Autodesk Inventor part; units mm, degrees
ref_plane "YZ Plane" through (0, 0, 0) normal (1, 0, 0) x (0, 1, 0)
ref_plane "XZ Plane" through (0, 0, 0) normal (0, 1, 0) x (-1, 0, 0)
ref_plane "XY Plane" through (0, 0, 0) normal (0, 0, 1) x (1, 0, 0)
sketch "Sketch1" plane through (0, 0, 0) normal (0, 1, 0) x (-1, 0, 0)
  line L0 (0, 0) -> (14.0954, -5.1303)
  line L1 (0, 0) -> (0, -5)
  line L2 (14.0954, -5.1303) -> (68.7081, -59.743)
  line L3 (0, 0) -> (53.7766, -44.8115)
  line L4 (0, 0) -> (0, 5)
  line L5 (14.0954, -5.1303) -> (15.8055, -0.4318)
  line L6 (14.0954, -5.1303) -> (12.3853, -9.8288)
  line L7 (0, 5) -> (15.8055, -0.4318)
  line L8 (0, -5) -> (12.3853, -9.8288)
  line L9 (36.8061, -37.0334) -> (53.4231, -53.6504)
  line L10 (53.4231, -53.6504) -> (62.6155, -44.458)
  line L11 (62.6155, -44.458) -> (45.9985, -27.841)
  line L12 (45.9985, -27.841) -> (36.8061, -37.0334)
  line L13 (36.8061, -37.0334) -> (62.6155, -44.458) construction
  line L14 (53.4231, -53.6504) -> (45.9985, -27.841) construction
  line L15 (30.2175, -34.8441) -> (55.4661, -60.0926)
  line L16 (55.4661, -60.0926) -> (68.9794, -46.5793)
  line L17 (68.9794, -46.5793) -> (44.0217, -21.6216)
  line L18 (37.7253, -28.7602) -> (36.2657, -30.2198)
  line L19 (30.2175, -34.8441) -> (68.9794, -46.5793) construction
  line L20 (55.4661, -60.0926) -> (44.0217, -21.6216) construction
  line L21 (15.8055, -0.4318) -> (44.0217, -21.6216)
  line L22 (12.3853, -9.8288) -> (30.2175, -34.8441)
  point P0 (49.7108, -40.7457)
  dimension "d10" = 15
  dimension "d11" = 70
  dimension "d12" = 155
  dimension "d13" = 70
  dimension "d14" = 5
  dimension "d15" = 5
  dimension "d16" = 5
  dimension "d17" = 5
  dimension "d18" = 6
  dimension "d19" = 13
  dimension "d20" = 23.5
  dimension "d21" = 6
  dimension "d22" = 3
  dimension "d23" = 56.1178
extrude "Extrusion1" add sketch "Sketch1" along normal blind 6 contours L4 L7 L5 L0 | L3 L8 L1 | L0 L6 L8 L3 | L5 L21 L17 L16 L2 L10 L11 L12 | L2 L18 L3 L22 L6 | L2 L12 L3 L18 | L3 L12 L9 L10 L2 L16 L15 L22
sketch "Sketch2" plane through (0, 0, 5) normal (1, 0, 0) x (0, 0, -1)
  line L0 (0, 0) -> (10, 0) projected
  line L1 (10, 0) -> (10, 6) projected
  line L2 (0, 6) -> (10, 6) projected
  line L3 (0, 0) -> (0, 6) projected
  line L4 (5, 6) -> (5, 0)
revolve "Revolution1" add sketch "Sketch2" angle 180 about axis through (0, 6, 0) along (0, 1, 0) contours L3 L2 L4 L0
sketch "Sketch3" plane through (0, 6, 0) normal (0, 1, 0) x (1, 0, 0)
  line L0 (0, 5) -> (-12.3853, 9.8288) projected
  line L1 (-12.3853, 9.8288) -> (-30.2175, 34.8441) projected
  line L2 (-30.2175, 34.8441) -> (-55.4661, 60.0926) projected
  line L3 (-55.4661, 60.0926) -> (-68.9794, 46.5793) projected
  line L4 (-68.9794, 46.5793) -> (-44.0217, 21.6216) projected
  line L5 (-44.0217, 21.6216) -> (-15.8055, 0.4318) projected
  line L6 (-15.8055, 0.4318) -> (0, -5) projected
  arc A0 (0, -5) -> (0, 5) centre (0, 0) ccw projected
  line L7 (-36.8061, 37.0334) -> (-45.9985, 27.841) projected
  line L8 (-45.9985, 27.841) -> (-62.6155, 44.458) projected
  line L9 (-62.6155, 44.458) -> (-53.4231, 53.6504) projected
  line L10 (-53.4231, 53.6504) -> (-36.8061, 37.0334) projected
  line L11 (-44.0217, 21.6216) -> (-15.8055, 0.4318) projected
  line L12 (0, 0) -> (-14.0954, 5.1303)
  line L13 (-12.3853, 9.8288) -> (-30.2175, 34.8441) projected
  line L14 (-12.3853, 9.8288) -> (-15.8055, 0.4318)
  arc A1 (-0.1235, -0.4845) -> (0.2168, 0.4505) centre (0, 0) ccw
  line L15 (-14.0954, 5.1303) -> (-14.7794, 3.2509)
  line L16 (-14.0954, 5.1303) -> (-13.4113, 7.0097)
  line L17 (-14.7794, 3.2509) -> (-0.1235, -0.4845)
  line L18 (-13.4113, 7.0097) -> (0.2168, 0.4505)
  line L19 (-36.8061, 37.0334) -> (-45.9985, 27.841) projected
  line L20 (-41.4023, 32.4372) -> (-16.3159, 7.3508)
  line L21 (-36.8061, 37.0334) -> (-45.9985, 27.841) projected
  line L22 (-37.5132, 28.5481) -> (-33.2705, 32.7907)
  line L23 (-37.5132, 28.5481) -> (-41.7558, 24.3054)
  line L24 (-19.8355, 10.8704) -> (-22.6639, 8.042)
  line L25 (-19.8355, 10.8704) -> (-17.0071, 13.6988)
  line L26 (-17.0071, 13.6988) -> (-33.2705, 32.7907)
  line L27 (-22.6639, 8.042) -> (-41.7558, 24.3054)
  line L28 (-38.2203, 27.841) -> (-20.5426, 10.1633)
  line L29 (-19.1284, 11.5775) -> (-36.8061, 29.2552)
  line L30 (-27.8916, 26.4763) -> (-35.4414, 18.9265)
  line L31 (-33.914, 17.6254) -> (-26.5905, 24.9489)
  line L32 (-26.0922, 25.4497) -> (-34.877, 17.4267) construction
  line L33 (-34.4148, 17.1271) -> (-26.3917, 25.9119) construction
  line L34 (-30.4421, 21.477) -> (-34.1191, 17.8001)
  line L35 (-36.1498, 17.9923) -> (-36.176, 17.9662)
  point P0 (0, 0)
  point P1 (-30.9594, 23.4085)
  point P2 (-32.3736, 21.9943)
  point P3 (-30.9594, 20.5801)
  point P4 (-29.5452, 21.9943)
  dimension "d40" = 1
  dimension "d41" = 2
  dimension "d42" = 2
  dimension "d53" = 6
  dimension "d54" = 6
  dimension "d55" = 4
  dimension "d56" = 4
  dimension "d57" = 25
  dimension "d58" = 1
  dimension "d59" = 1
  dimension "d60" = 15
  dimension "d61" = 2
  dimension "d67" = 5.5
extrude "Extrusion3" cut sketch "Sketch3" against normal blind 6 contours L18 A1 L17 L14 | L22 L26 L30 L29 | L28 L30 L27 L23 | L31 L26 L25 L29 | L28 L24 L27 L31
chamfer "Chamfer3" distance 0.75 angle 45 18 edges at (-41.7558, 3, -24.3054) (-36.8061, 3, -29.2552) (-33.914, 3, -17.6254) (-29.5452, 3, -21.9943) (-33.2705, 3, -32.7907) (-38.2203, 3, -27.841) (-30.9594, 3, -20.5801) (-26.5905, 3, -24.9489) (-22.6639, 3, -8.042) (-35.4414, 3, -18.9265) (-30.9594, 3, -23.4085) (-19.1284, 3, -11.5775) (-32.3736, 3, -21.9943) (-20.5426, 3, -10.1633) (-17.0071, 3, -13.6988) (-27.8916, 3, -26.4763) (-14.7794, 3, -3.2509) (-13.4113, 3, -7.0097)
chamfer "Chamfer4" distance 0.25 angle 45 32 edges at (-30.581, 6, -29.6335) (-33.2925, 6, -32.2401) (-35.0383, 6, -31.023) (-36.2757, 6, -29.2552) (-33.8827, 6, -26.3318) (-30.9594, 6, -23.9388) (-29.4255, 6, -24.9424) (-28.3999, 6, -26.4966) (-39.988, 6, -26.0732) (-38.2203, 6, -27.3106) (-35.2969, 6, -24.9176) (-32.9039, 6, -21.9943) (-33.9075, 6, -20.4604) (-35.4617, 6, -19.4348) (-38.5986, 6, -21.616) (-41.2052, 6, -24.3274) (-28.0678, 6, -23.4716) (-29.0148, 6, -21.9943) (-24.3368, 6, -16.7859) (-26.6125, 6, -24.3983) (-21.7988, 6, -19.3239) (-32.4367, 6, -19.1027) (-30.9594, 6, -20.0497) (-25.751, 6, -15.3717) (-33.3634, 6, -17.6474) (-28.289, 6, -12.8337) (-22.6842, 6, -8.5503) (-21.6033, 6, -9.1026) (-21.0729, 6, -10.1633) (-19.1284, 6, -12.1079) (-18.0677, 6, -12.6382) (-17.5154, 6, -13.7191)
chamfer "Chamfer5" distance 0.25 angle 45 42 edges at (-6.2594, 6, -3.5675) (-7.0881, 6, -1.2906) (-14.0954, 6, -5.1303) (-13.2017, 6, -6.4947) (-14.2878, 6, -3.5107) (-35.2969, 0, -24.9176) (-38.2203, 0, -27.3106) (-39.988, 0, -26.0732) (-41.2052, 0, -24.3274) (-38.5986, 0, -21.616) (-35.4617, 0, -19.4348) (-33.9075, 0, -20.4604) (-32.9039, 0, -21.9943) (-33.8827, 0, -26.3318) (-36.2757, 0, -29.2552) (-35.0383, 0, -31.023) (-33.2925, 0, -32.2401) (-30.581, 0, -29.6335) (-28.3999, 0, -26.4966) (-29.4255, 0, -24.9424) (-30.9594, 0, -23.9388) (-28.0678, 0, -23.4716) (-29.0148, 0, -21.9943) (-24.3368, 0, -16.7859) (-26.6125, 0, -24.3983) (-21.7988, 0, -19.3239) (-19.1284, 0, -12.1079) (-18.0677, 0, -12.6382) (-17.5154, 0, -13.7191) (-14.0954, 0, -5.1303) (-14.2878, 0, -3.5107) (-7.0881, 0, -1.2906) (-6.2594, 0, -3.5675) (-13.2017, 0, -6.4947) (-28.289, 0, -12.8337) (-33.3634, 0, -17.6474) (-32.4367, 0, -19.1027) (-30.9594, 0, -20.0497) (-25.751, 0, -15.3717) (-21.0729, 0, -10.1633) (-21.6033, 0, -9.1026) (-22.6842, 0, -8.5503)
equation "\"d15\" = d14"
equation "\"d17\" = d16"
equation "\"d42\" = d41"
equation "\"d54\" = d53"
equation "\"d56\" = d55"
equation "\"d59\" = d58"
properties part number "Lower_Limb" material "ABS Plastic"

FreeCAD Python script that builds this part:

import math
import FreeCAD as App
import Part
import Sketcher
Q = App.Units.Quantity


def edges_at(feature, points):
    """Names of the edges that pass closest to the given points."""
    edges = feature.Shape.Edges
    near = lambda p: min(range(len(edges)), key=lambda i: edges[i].distToShape(Part.Vertex(*p))[0])
    return sorted({f"Edge{near(p) + 1}" for p in points})


def add_polygon(sketch, points):
    """Adds a closed chain of lines whose ends are joined by coincident constraints."""
    first, n = sketch.GeometryCount, len(points)
    for a, b in zip(points, points[1:] + points[:1]):
        sketch.addGeometry(Part.LineSegment(App.Vector(*a, 0), App.Vector(*b, 0)), False)
    for i in range(n):
        sketch.addConstraint(Sketcher.Constraint("Coincident", first + i, 2, first + (i + 1) % n, 1))

doc = App.newDocument("Part")
body = doc.addObject("PartDesign::Body", "Body")

sketch1 = body.newObject("Sketcher::SketchObject", "Sketch")
sketch1.AttachmentSupport = (doc.getObject("XZ_Plane"), [""])
sketch1.MapMode = "FlatFace"
add_polygon(sketch1, [(0, 5), (0, -5), (-12.3853, -9.8288), (-30.2175, -34.8441), (-55.4661, -60.0926), (-68.9794, -46.5793), (-44.0217, -21.6216), (-15.8055, -0.4318)])
add_polygon(sketch1, [(-62.6155, -44.458), (-53.4231, -53.6504), (-36.8061, -37.0334), (-45.9985, -27.841)])
sketch1.addConstraint([
    Sketcher.Constraint("Vertical", 0),
    Sketcher.Constraint("Symmetric", 0, 2, 7, 2, -1, 1),
    Sketcher.Constraint("Perpendicular", 3, 4),
    Sketcher.Constraint("Perpendicular", 4, 5),
    Sketcher.Constraint("Perpendicular", 5, 8),
    Sketcher.Constraint("Perpendicular", 8, 9),
    Sketcher.Constraint("Perpendicular", 9, 10),
    Sketcher.Constraint("Perpendicular", 10, 11),
    Sketcher.Constraint("Distance", 8, 13.0),
    Sketcher.Constraint("DistanceY", 0, 2, -1, 1, 5.0),
    Sketcher.Constraint("Distance", 9, 23.5),
    Sketcher.Constraint("Angle", 3, Q("-135 deg")),
    Sketcher.Constraint("Angle", 1, Q("-158.7 deg")),
    Sketcher.Constraint("DistanceX", 3, 2, 9, 2, 18.66),
    Sketcher.Constraint("DistanceY", 2, 2, -1, 1, 34.844),
    Sketcher.Constraint("DistanceX", 3, 2, -1, 1, 55.466),
    Sketcher.Constraint("DistanceY", 10, 2, -1, 1, 27.841),
    Sketcher.Constraint("DistanceX", 4, 2, 2, 2, 38.762),
    Sketcher.Constraint("DistanceX", 4, 2, 1, 2, 56.594),
    Sketcher.Constraint("DistanceY", 3, 2, 5, 2, 38.471),
    Sketcher.Constraint("DistanceY", 1, 2, 6, 2, 9.397),
    Sketcher.Constraint("DistanceX", 2, 2, 6, 2, 14.412),
    Sketcher.Constraint("DistanceY", 8, 2, 4, 2, 7.071),
])
pad1 = body.newObject("PartDesign::Pad", "Pad")
pad1.Profile = sketch1
pad1.Length = 6
pad1.Reversed = True

sketch2 = body.newObject("Sketcher::SketchObject", "Sketch001")
sketch2.AttachmentSupport = (doc.getObject("YZ_Plane"), [""])
sketch2.MapMode = "FlatFace"
add_polygon(sketch2, [(6, 5), (0, 5), (0, 0), (6, 0)])
sketch2.addConstraint([
    Sketcher.Constraint("Horizontal", 0),
    Sketcher.Constraint("Vertical", 1),
    Sketcher.Constraint("Horizontal", 2),
    Sketcher.Constraint("Vertical", 3),
    Sketcher.Constraint("Coincident", 1, 2, -1, 1),
    Sketcher.Constraint("DistanceX", 0, 2, 0, 1, 6.0),
    Sketcher.Constraint("DistanceY", 1, 2, 1, 1, 5.0),
])
revolution = body.newObject("PartDesign::Revolution", "Revolution")
revolution.Profile = sketch2
revolution.ReferenceAxis = (sketch2, ["H_Axis"])
revolution.Angle = 180

sketch3 = body.newObject("Sketcher::SketchObject", "Sketch002")
sketch3.AttachmentSupport = (doc.getObject("XZ_Plane"), [""])
sketch3.MapMode = "FlatFace"
sketch3.AttachmentOffset = App.Placement(App.Vector(0, 0, -6), App.Rotation())
sketch3.addGeometry(Part.LineSegment(App.Vector(0.2168, -0.4505, 0), App.Vector(-13.4113, -7.0097, 0)), False)
sketch3.addGeometry(Part.LineSegment(App.Vector(-13.4113, -7.0097, 0), App.Vector(-14.7794, -3.2509, 0)), False)
sketch3.addGeometry(Part.LineSegment(App.Vector(-14.7794, -3.2509, 0), App.Vector(-0.1235, 0.4845, 0)), False)
sketch3.addGeometry(Part.ArcOfCircle(Part.Circle(App.Vector(0, 0, 0), App.Vector(0, 0, 1), 0.499992), math.radians(-64.301137), math.radians(104.300277)), False)
add_polygon(sketch3, [(-33.2705, -32.7907), (-36.8061, -29.2552), (-30.9594, -23.4085), (-27.891594, -26.476305)])
add_polygon(sketch3, [(-32.3736, -21.9943), (-38.220292, -27.840992), (-41.7558, -24.3054), (-35.4414, -18.9265)])
add_polygon(sketch3, [(-26.5905, -24.9489), (-29.54515, -21.99425), (-19.1284, -11.5775), (-17.0071, -13.6988)])
add_polygon(sketch3, [(-20.5426, -10.1633), (-30.95935, -20.58005), (-33.914011, -17.625387), (-22.6639, -8.042)])
sketch3.addConstraint([
    Sketcher.Constraint("Coincident", 0, 2, 1, 1),
    Sketcher.Constraint("Coincident", 1, 2, 2, 1),
    Sketcher.Constraint("Tangent", 2, 2, 3, 2),
    Sketcher.Constraint("Tangent", 3, 1, 0, 1),
    Sketcher.Constraint("Coincident", 3, 3, -1, 1),
    Sketcher.Constraint("Perpendicular", 4, 5),
    Sketcher.Constraint("Perpendicular", 5, 6),
    Sketcher.Constraint("Perpendicular", 6, 8),
    Sketcher.Constraint("Perpendicular", 8, 9),
    Sketcher.Constraint("Parallel", 9, 11),
    Sketcher.Constraint("Parallel", 11, 12),
    Sketcher.Constraint("Perpendicular", 12, 13),
    Sketcher.Constraint("Perpendicular", 13, 14),
    Sketcher.Constraint("Parallel", 7, 15),
    Sketcher.Constraint("Perpendicular", 14, 16),
    Sketcher.Constraint("Perpendicular", 16, 17),
    Sketcher.Constraint("Parallel", 10, 18),
    Sketcher.Constraint("Parallel", 17, 19),
    Sketcher.Constraint("Horizontal", 11, 2, 12, 2),
    Sketcher.Constraint("Vertical", 5, 2, 16, 2),
    Sketcher.Constraint("Equal", 0, 2),
    Sketcher.Constraint("Equal", 5, 8),
    Sketcher.Constraint("Equal", 4, 9),
    Sketcher.Constraint("Equal", 7, 10),
    Sketcher.Constraint("Equal", 13, 16),
    Sketcher.Constraint("Equal", 12, 17),
    Sketcher.Constraint("Radius", 3, 0.5),
    Sketcher.Constraint("Distance", 1, 4.0),
    Sketcher.Constraint("Angle", 1, Q("110 deg")),
    Sketcher.Constraint("Angle", 4, Q("135.0007 deg")),
    Sketcher.Constraint("Distance", 4, 5.0),
    Sketcher.Constraint("Distance", 14, 3.0),
    Sketcher.Constraint("DistanceY", 16, 2, -1, 1, 20.58),
    Sketcher.Constraint("DistanceX", 5, 2, 1, 2, 16.18),
    Sketcher.Constraint("DistanceX", 7, 2, 15, 2, 6.68),
    Sketcher.Constraint("DistanceX", 17, 2, 18, 2, 11.25),
    Sketcher.Constraint("DistanceY", 1, 2, -1, 1, 3.251),
    Sketcher.Constraint("DistanceX", 4, 2, -1, 1, 36.806),
    Sketcher.Constraint("DistanceY", 8, 2, -1, 1, 27.841),
    Sketcher.Constraint("DistanceX", 14, 2, -1, 1, 17.007),
    Sketcher.Constraint("DistanceY", 5, 2, 3, 1, 22.958),
    Sketcher.Constraint("DistanceX", 8, 2, 5, 2, 7.261),
])
pocket1 = body.newObject("PartDesign::Pocket", "Pocket")
pocket1.Profile = sketch3
pocket1.Length = 6
pocket1.Reversed = True
doc.recompute()

chamfer = body.newObject("PartDesign::Chamfer", "Chamfer")
chamfer.Base = (pocket1, edges_at(pocket1, [
    (-41.756, 3, -24.305),
    (-36.806, 3, -29.255),
    (-33.914, 3, -17.625),
    (-29.545, 3, -21.994),
    (-33.27, 3, -32.791),
    (-38.22, 3, -27.841),
    (-30.959, 3, -20.58),
    (-26.59, 3, -24.949),
    (-22.664, 3, -8.042),
    (-35.441, 3, -18.927),
    (-30.959, 3, -23.409),
    (-19.128, 3, -11.578),
    (-32.374, 3, -21.994),
    (-20.543, 3, -10.163),
    (-17.007, 3, -13.699),
    (-27.892, 3, -26.476),
    (-14.779, 3, -3.251),
    (-13.411, 3, -7.01),
]))
chamfer.Size = 0.75
doc.recompute()

chamfer2 = body.newObject("PartDesign::Chamfer", "Chamfer001")
chamfer2.Base = (chamfer, edges_at(chamfer, [
    (-30.581, 6, -29.634),
    (-33.292, 6, -32.24),
    (-35.038, 6, -31.023),
    (-36.276, 6, -29.255),
    (-33.883, 6, -26.332),
    (-30.959, 6, -23.939),
    (-29.425, 6, -24.942),
    (-28.4, 6, -26.497),
    (-39.988, 6, -26.073),
    (-38.22, 6, -27.311),
    (-35.297, 6, -24.918),
    (-32.904, 6, -21.994),
    (-33.907, 6, -20.46),
    (-35.462, 6, -19.435),
    (-38.599, 6, -21.616),
    (-41.205, 6, -24.327),
    (-28.068, 6, -23.472),
    (-29.015, 6, -21.994),
    (-24.337, 6, -16.786),
    (-26.613, 6, -24.398),
    (-21.799, 6, -19.324),
    (-32.437, 6, -19.103),
    (-30.959, 6, -20.05),
    (-25.751, 6, -15.372),
    (-33.363, 6, -17.647),
    (-28.289, 6, -12.834),
    (-22.684, 6, -8.55),
    (-21.603, 6, -9.103),
    (-21.073, 6, -10.163),
    (-19.128, 6, -12.108),
    (-18.068, 6, -12.638),
    (-17.515, 6, -13.719),
]))
chamfer2.Size = 0.25
doc.recompute()

chamfer3 = body.newObject("PartDesign::Chamfer", "Chamfer002")
chamfer3.Base = (chamfer2, edges_at(chamfer2, [
    (-6.259, 6, -3.567),
    (-7.088, 6, -1.291),
    (-14.095, 6, -5.13),
    (-13.202, 6, -6.495),
    (-14.288, 6, -3.511),
    (-35.297, 0, -24.918),
    (-38.22, 0, -27.311),
    (-39.988, 0, -26.073),
    (-41.205, 0, -24.327),
    (-38.599, 0, -21.616),
    (-35.462, 0, -19.435),
    (-33.907, 0, -20.46),
    (-32.904, 0, -21.994),
    (-33.883, 0, -26.332),
    (-36.276, 0, -29.255),
    (-35.038, 0, -31.023),
    (-33.292, 0, -32.24),
    (-30.581, 0, -29.634),
    (-28.4, 0, -26.497),
    (-29.425, 0, -24.942),
    (-30.959, 0, -23.939),
    (-28.068, 0, -23.472),
    (-29.015, 0, -21.994),
    (-24.337, 0, -16.786),
    (-26.613, 0, -24.398),
    (-21.799, 0, -19.324),
    (-19.128, 0, -12.108),
    (-18.068, 0, -12.638),
    (-17.515, 0, -13.719),
    (-14.095, 0, -5.13),
    (-14.288, 0, -3.511),
    (-7.088, 0, -1.291),
    (-6.259, 0, -3.567),
    (-13.202, 0, -6.495),
    (-28.289, 0, -12.834),
    (-33.363, 0, -17.647),
    (-32.437, 0, -19.103),
    (-30.959, 0, -20.05),
    (-25.751, 0, -15.372),
    (-21.073, 0, -10.163),
    (-21.603, 0, -9.103),
    (-22.684, 0, -8.55),
]))
chamfer3.Size = 0.25

doc.recompute()
